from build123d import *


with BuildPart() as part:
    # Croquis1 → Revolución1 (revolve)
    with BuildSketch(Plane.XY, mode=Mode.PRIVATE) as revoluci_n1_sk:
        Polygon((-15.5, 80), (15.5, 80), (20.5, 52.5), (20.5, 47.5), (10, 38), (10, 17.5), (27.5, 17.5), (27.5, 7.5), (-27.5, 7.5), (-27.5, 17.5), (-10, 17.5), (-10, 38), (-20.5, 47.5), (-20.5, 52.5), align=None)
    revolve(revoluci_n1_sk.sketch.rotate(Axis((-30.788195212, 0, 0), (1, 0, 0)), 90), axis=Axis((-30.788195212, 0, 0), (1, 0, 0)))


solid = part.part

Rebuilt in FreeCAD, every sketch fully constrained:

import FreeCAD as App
import Part
import Sketcher


def add_polygon(sketch, points):
    """Adds a closed chain of lines whose ends are joined by coincident constraints."""
    first, n = sketch.GeometryCount, len(points)
    for a, b in zip(points, points[1:] + points[:1]):
        sketch.addGeometry(Part.LineSegment(App.Vector(*a, 0), App.Vector(*b, 0)), False)
    for i in range(n):
        sketch.addConstraint(Sketcher.Constraint("Coincident", first + i, 2, first + (i + 1) % n, 1))

doc = App.newDocument("Part")
params = doc.addObject("Spreadsheet::Sheet", "Params")
for row, (alias, value) in enumerate([
    ("sketch1_width", "31 mm"),
    ("sketch1_width2", "55 mm"),
    ("sketch1_height", "5 mm"),
    ("sketch1_height2", "10 mm"),
    ("sketch1_width3", "17.5 mm"),
    ("revolution_angle", "360 deg"),
], start=1):
    params.set(f"A{row}", alias)
    params.set(f"B{row}", "=" + value)
    params.setAlias(f"B{row}", alias)

body = doc.addObject("PartDesign::Body", "Body")

sketch1 = body.newObject("Sketcher::SketchObject", "Sketch")
sketch1.AttachmentSupport = (doc.getObject("XY_Plane"), [""])
sketch1.MapMode = "FlatFace"
add_polygon(sketch1, [(16, 80), (-16, 80), (-20, 52), (-20, 48), (-10, 38), (-10, 18), (-28, 18), (-28, 8), (28, 8), (28, 18), (10, 18), (10, 38), (20, 48), (20, 52)])
sketch1.addConstraint(Sketcher.Constraint("Horizontal", 0))
sketch1.addConstraint(Sketcher.Constraint("Vertical", 2))
sketch1.addConstraint(Sketcher.Constraint("Vertical", 4))
sketch1.addConstraint(Sketcher.Constraint("Horizontal", 5))
sketch1.addConstraint(Sketcher.Constraint("Vertical", 6))
sketch1.addConstraint(Sketcher.Constraint("Horizontal", 7))
sketch1.addConstraint(Sketcher.Constraint("Vertical", 8))
sketch1.addConstraint(Sketcher.Constraint("Horizontal", 9))
sketch1.addConstraint(Sketcher.Constraint("Vertical", 10))
sketch1.addConstraint(Sketcher.Constraint("Vertical", 12))
sketch1.addConstraint(Sketcher.Constraint("Symmetric", 5, 2, 8, 2, -2))
sketch1.addConstraint(Sketcher.Constraint("Symmetric", 3, 2, 10, 2, -2))
sketch1.addConstraint(Sketcher.Constraint("Symmetric", 2, 2, 11, 2, -2))
sketch1.addConstraint(Sketcher.Constraint("Horizontal", 1, 2, 12, 2))
sketch1.addConstraint(Sketcher.Constraint("Equal", 1, 13))
sketch1.addConstraint(Sketcher.Constraint("DistanceX", 0, 2, 0, 1, 31.0))
sketch1.addConstraint(Sketcher.Constraint("DistanceX", 7, 1, 7, 2, 55.0))
sketch1.addConstraint(Sketcher.Constraint("DistanceY", 2, 2, 2, 1, 5.0))
sketch1.addConstraint(Sketcher.Constraint("DistanceY", 6, 2, 6, 1, 10.0))
sketch1.addConstraint(Sketcher.Constraint("DistanceX", 5, 2, 5, 1, 17.5))
sketch1.addConstraint(Sketcher.Constraint("DistanceY", 4, 2, 4, 1, 20.5))
sketch1.addConstraint(Sketcher.Constraint("DistanceY", -1, 1, 0, 2, 80.0))
sketch1.addConstraint(Sketcher.Constraint("DistanceY", -1, 1, 3, 2, 38.0))
sketch1.addConstraint(Sketcher.Constraint("DistanceX", 1, 2, 0, 2, 5.0))
sketch1.addConstraint(Sketcher.Constraint("DistanceY", 4, 2, 2, 2, 30.0))
sketch1.setExpression("Constraints[29]", "Params.sketch1_width")
sketch1.setExpression("Constraints[30]", "Params.sketch1_width2")
sketch1.setExpression("Constraints[31]", "Params.sketch1_height")
sketch1.setExpression("Constraints[32]", "Params.sketch1_height2")
sketch1.setExpression("Constraints[33]", "Params.sketch1_width3")
revolution = body.newObject("PartDesign::Revolution", "Revolution")
revolution.Profile = sketch1
revolution.ReferenceAxis = (sketch1, ["H_Axis"])
revolution.setExpression("Angle", "Params.revolution_angle")

doc.recompute()
